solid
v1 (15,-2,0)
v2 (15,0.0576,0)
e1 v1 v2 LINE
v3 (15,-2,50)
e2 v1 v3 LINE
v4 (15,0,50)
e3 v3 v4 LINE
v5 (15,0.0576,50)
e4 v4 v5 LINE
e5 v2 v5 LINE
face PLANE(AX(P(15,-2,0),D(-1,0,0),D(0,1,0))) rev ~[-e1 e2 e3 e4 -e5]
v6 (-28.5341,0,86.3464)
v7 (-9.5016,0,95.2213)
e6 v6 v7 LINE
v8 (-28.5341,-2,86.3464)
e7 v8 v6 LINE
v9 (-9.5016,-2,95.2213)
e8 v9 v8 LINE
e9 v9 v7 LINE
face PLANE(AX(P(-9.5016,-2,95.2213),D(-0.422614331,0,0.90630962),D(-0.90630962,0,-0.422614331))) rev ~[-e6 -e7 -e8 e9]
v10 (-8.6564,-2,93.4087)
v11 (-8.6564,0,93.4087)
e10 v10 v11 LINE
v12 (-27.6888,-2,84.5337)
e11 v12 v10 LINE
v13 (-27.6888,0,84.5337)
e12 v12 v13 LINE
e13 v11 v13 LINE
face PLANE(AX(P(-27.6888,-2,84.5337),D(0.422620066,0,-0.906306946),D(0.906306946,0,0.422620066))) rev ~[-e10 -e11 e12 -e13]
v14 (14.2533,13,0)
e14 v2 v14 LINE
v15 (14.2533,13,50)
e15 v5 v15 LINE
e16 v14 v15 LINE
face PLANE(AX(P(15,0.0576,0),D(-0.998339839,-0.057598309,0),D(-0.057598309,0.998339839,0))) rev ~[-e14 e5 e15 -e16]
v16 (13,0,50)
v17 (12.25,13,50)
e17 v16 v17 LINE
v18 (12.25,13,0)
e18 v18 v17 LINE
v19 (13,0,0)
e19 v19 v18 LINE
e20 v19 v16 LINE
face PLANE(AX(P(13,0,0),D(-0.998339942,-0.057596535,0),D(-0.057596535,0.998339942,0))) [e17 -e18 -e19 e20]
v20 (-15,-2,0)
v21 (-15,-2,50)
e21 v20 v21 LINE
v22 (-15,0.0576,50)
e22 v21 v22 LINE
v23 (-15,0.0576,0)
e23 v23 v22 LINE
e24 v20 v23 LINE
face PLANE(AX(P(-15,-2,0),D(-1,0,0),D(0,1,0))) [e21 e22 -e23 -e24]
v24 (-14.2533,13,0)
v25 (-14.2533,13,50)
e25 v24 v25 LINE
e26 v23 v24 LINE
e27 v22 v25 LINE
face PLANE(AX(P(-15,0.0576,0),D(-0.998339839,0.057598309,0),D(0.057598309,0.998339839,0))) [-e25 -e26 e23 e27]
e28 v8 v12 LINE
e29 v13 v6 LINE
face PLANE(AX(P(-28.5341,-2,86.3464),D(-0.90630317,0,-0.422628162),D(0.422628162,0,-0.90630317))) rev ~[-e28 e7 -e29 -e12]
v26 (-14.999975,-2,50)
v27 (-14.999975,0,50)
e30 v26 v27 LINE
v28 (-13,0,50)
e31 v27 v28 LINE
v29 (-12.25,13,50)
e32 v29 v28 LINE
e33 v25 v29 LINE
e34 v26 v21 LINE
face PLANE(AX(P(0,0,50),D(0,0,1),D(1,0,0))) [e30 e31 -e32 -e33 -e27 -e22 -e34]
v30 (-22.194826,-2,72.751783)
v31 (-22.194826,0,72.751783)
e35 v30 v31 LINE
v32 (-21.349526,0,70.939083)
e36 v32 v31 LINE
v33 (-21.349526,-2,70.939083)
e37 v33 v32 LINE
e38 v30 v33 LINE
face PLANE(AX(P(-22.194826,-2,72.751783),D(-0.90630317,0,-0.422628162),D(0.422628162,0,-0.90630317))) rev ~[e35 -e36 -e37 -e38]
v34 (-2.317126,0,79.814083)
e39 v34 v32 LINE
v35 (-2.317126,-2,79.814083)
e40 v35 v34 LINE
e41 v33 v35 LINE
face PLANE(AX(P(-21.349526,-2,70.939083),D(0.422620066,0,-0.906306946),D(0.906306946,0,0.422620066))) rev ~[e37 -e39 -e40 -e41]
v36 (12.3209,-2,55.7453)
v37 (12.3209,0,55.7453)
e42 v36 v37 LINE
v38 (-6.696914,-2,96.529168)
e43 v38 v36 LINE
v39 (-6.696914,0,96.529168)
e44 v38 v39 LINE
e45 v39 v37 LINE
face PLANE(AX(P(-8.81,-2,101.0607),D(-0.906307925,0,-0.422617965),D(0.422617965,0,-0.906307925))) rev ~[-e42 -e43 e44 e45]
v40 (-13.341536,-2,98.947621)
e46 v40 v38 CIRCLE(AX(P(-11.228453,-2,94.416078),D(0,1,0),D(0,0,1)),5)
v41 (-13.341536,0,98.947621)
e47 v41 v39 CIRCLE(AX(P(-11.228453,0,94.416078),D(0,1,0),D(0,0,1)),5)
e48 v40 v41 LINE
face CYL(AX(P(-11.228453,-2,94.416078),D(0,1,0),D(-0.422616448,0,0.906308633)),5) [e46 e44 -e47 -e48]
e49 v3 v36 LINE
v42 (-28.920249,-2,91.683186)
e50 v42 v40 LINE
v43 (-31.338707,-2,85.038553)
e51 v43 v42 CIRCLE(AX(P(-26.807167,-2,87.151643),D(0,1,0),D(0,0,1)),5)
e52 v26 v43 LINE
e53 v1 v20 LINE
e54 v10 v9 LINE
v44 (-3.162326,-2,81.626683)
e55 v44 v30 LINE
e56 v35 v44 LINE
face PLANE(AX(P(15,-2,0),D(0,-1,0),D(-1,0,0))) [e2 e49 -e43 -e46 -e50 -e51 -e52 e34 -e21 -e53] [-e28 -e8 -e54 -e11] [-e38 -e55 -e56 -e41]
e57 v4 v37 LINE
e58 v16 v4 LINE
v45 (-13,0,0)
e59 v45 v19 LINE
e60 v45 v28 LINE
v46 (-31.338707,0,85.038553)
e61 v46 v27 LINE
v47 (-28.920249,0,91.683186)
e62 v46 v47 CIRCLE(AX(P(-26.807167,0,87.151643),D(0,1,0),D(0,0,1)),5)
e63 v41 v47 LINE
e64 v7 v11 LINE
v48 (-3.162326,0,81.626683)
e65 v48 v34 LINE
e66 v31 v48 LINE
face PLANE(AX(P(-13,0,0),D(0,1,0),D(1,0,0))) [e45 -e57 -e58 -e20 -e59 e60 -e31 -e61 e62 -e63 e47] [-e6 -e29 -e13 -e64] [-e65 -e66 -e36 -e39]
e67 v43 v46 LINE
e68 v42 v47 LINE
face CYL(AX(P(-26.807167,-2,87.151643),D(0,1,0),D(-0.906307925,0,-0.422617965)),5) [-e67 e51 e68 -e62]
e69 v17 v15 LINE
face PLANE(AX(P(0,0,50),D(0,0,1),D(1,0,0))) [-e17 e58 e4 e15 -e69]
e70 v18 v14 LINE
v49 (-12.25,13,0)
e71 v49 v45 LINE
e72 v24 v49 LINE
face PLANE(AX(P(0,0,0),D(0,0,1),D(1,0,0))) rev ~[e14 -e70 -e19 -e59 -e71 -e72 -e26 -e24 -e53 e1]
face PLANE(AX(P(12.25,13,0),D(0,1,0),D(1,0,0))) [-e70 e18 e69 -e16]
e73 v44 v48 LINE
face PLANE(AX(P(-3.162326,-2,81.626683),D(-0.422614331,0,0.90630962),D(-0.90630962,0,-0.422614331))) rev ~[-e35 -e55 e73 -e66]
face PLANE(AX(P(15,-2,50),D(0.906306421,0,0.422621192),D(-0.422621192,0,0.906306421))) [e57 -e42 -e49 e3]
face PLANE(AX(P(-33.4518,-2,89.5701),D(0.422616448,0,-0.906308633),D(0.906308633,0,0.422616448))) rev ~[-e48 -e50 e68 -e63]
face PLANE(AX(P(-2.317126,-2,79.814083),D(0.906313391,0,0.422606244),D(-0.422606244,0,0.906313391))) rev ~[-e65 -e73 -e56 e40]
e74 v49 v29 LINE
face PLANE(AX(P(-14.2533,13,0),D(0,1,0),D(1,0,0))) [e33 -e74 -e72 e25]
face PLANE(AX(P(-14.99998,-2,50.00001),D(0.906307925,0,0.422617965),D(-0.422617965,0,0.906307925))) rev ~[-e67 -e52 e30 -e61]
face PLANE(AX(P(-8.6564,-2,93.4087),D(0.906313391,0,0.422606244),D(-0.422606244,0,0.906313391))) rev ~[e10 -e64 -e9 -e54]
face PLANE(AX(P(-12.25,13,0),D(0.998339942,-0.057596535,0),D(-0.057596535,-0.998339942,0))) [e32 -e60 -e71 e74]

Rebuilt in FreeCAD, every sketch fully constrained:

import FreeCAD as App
import Part
import Sketcher

V = App.Vector
Q = App.Units.Quantity


def edges_at(feature, points):
    """Names of the edges that pass closest to the given points."""
    edges = feature.Shape.Edges
    near = lambda p: min(range(len(edges)), key=lambda i: edges[i].distToShape(Part.Vertex(*p))[0])
    return sorted({f"Edge{near(p) + 1}" for p in points})

doc = App.newDocument("Part")
body = doc.addObject("PartDesign::Body", "Body")

# Sketch on XY plane
sketch1 = body.newObject("Sketcher::SketchObject", "Sketch")
sketch1.AttachmentSupport = (doc.getObject("XY_Plane"), [""])
sketch1.MapMode = "FlatFace"
sketch1.addGeometry([
    Part.LineSegment(V(13, 0, 0), V(-13, 0, 0)),  # 0
    Part.LineSegment(V(-13, 0, 0), V(-12.2, 13, 0)),  # 1
    Part.LineSegment(V(-12.2, 13, 0), V(-14.3, 13, 0)),  # 2
    Part.LineSegment(V(-14.3, 13, 0), V(-15, 0.1, 0)),  # 3
    Part.LineSegment(V(-15, 0.1, 0), V(-15, -2, 0)),  # 4
    Part.LineSegment(V(-15, -2, 0), V(15, -2, 0)),  # 5
    Part.LineSegment(V(15, -2, 0), V(15, 0.1, 0)),  # 6
    Part.LineSegment(V(15, 0.1, 0), V(14.3, 13, 0)),  # 7
    Part.LineSegment(V(14.3, 13, 0), V(12.2, 13, 0)),  # 8
    Part.LineSegment(V(12.2, 13, 0), V(13, 0, 0)),  # 9
], False)
sketch1.addConstraint([
    Sketcher.Constraint("Coincident", 0, 2, 1, 1),
    Sketcher.Constraint("Coincident", 1, 2, 2, 1),
    Sketcher.Constraint("Coincident", 2, 2, 3, 1),
    Sketcher.Constraint("Coincident", 3, 2, 4, 1),
    Sketcher.Constraint("Coincident", 4, 2, 5, 1),
    Sketcher.Constraint("Coincident", 5, 2, 6, 1),
    Sketcher.Constraint("Coincident", 6, 2, 7, 1),
    Sketcher.Constraint("Coincident", 7, 2, 8, 1),
    Sketcher.Constraint("Coincident", 8, 2, 9, 1),
    Sketcher.Constraint("Coincident", 9, 2, 0, 1),
    Sketcher.Constraint("Horizontal", 0),
    Sketcher.Constraint("Horizontal", 2),
    Sketcher.Constraint("Vertical", 4),
    Sketcher.Constraint("Horizontal", 5),
    Sketcher.Constraint("Vertical", 6),
    Sketcher.Constraint("Horizontal", 8),
    Sketcher.Constraint("Symmetric", 0, 2, 9, 2, -1, 1),
    Sketcher.Constraint("Symmetric", 3, 2, 6, 2, -2),
    Sketcher.Constraint("Symmetric", 2, 2, 7, 2, -2),
    Sketcher.Constraint("Parallel", 1, 3),
    Sketcher.Constraint("Parallel", 7, 9),
    Sketcher.Constraint("DistanceX", 0, 2, 0, 1, Q("26 mm")),
    Sketcher.Constraint("DistanceY", -1, 1, 1, 2, Q("13 mm")),
    Sketcher.Constraint("DistanceY", 4, 2, -1, 1, Q("2 mm")),
    Sketcher.Constraint("DistanceX", 3, 2, 0, 2, Q("2 mm")),
    Sketcher.Constraint("DistanceX", 1, 2, 8, 2, Q("24.5 mm")),
    Sketcher.Constraint("Distance", 3, Q("12.964 mm")),
])
pad1 = body.newObject("PartDesign::Pad", "Pad")
pad1.Profile = sketch1
pad1.Length = 50

# Sketch on XZ plane
sketch2 = body.newObject("Sketcher::SketchObject", "Sketch001")
sketch2.AttachmentSupport = (doc.getObject("XZ_Plane"), [""])
sketch2.MapMode = "FlatFace"
sketch2.AttachmentOffset = App.Placement(V(0, 0, 2), App.Rotation())
sketch2.addGeometry([
    Part.LineSegment(V(-33, 90, 0), V(-12, 44, 0)),  # 0
    Part.LineSegment(V(-12, 44, 0), V(0, 50, 0)),  # 1
    Part.LineSegment(V(0, 50, 0), V(15, 50, 0)),  # 2
    Part.LineSegment(V(15, 50, 0), V(12, 56, 0)),  # 3
    Part.LineSegment(V(12, 56, 0), V(-9, 101, 0)),  # 4
    Part.LineSegment(V(-9, 101, 0), V(-33, 90, 0)),  # 5
], False)
sketch2.addConstraint([
    Sketcher.Constraint("Coincident", 0, 2, 1, 1),
    Sketcher.Constraint("Coincident", 1, 2, 2, 1),
    Sketcher.Constraint("Coincident", 2, 2, 3, 1),
    Sketcher.Constraint("Coincident", 3, 2, 4, 1),
    Sketcher.Constraint("Coincident", 4, 2, 5, 1),
    Sketcher.Constraint("Coincident", 5, 2, 0, 1),
    Sketcher.Constraint("Horizontal", 2),
    Sketcher.Constraint("PointOnObject", 1, 2, -2),
    Sketcher.Constraint("Perpendicular", 0, 1),
    Sketcher.Constraint("Perpendicular", 1, 3),
    Sketcher.Constraint("Parallel", 3, 4),
    Sketcher.Constraint("Perpendicular", 4, 5),
    Sketcher.Constraint("Equal", 0, 4),
    Sketcher.Constraint("Angle", 1, Q("25 deg")),
    Sketcher.Constraint("Distance", 0, Q("50 mm")),
    Sketcher.Constraint("DistanceY", -1, 1, 1, 2, Q("50 mm")),
    Sketcher.Constraint("DistanceX", 2, 1, 2, 2, Q("15 mm")),
    Sketcher.Constraint("DistanceY", -1, 1, 5, 2, Q("89.57 mm")),
])
pad2 = body.newObject("PartDesign::Pad", "Pad001")
pad2.Profile = sketch2
pad2.Length = 2
pad2.Reversed = True

# Sketch on XZ plane
sketch3 = body.newObject("Sketcher::SketchObject", "Sketch002")
sketch3.AttachmentSupport = (doc.getObject("XZ_Plane"), [""])
sketch3.MapMode = "FlatFace"
sketch3.AttachmentOffset = App.Placement(V(0, 0, 2), App.Rotation())
sketch3.addGeometry([
    Part.LineSegment(V(-9.5, 95.2, 0), V(-28.5, 86.3, 0)),
    Part.LineSegment(V(-28.5, 86.3, 0), V(-27.7, 84.5, 0)),
    Part.LineSegment(V(-27.7, 84.5, 0), V(-8.7, 93.4, 0)),
    Part.LineSegment(V(-8.7, 93.4, 0), V(-9.5, 95.2, 0)),
], False)
sketch3.addConstraint([
    Sketcher.Constraint("Coincident", 0, 2, 1, 1),
    Sketcher.Constraint("Coincident", 1, 2, 2, 1),
    Sketcher.Constraint("Coincident", 2, 2, 3, 1),
    Sketcher.Constraint("Coincident", 3, 2, 0, 1),
    Sketcher.Constraint("Perpendicular", 0, 1),
    Sketcher.Constraint("Perpendicular", 1, 2),
    Sketcher.Constraint("Perpendicular", 2, 3),
    Sketcher.Constraint("Distance", 0, Q("21 mm")),
    Sketcher.Constraint("Distance", 1, Q("2 mm")),
    Sketcher.Constraint("Angle", 0, Q("-155.0002 deg")),
    Sketcher.Constraint("DistanceX", 0, 2, -1, 1, Q("28.534 mm")),
    Sketcher.Constraint("DistanceY", -1, 1, 0, 2, Q("86.3464 mm")),
])
pocket1 = body.newObject("PartDesign::Pocket", "Pocket")
pocket1.Profile = sketch3
pocket1.Type = "ThroughAll"
doc.recompute()

datumline = body.newObject("PartDesign::Line", "DatumLine")
datumline.Placement = App.Placement(V(0, 0, 0), App.Rotation(V(0, 0, 1), V(0.422618262, 0, -0.906307787)))
linearpattern = body.newObject("PartDesign::LinearPattern", "LinearPattern")
linearpattern.Originals = [pocket1]
linearpattern.Direction = (datumline, [""])
linearpattern.Mode = "offset"
linearpattern.Offset = 15
linearpattern.Occurrences = 2
body.Tip = linearpattern
doc.recompute()

fillet = body.newObject("PartDesign::Fillet", "Fillet")
fillet.Base = (linearpattern, edges_at(linearpattern, [(-33.452, -1, 89.57), (-8.81, -1, 101.061)]))
fillet.Radius = 5

doc.recompute()
